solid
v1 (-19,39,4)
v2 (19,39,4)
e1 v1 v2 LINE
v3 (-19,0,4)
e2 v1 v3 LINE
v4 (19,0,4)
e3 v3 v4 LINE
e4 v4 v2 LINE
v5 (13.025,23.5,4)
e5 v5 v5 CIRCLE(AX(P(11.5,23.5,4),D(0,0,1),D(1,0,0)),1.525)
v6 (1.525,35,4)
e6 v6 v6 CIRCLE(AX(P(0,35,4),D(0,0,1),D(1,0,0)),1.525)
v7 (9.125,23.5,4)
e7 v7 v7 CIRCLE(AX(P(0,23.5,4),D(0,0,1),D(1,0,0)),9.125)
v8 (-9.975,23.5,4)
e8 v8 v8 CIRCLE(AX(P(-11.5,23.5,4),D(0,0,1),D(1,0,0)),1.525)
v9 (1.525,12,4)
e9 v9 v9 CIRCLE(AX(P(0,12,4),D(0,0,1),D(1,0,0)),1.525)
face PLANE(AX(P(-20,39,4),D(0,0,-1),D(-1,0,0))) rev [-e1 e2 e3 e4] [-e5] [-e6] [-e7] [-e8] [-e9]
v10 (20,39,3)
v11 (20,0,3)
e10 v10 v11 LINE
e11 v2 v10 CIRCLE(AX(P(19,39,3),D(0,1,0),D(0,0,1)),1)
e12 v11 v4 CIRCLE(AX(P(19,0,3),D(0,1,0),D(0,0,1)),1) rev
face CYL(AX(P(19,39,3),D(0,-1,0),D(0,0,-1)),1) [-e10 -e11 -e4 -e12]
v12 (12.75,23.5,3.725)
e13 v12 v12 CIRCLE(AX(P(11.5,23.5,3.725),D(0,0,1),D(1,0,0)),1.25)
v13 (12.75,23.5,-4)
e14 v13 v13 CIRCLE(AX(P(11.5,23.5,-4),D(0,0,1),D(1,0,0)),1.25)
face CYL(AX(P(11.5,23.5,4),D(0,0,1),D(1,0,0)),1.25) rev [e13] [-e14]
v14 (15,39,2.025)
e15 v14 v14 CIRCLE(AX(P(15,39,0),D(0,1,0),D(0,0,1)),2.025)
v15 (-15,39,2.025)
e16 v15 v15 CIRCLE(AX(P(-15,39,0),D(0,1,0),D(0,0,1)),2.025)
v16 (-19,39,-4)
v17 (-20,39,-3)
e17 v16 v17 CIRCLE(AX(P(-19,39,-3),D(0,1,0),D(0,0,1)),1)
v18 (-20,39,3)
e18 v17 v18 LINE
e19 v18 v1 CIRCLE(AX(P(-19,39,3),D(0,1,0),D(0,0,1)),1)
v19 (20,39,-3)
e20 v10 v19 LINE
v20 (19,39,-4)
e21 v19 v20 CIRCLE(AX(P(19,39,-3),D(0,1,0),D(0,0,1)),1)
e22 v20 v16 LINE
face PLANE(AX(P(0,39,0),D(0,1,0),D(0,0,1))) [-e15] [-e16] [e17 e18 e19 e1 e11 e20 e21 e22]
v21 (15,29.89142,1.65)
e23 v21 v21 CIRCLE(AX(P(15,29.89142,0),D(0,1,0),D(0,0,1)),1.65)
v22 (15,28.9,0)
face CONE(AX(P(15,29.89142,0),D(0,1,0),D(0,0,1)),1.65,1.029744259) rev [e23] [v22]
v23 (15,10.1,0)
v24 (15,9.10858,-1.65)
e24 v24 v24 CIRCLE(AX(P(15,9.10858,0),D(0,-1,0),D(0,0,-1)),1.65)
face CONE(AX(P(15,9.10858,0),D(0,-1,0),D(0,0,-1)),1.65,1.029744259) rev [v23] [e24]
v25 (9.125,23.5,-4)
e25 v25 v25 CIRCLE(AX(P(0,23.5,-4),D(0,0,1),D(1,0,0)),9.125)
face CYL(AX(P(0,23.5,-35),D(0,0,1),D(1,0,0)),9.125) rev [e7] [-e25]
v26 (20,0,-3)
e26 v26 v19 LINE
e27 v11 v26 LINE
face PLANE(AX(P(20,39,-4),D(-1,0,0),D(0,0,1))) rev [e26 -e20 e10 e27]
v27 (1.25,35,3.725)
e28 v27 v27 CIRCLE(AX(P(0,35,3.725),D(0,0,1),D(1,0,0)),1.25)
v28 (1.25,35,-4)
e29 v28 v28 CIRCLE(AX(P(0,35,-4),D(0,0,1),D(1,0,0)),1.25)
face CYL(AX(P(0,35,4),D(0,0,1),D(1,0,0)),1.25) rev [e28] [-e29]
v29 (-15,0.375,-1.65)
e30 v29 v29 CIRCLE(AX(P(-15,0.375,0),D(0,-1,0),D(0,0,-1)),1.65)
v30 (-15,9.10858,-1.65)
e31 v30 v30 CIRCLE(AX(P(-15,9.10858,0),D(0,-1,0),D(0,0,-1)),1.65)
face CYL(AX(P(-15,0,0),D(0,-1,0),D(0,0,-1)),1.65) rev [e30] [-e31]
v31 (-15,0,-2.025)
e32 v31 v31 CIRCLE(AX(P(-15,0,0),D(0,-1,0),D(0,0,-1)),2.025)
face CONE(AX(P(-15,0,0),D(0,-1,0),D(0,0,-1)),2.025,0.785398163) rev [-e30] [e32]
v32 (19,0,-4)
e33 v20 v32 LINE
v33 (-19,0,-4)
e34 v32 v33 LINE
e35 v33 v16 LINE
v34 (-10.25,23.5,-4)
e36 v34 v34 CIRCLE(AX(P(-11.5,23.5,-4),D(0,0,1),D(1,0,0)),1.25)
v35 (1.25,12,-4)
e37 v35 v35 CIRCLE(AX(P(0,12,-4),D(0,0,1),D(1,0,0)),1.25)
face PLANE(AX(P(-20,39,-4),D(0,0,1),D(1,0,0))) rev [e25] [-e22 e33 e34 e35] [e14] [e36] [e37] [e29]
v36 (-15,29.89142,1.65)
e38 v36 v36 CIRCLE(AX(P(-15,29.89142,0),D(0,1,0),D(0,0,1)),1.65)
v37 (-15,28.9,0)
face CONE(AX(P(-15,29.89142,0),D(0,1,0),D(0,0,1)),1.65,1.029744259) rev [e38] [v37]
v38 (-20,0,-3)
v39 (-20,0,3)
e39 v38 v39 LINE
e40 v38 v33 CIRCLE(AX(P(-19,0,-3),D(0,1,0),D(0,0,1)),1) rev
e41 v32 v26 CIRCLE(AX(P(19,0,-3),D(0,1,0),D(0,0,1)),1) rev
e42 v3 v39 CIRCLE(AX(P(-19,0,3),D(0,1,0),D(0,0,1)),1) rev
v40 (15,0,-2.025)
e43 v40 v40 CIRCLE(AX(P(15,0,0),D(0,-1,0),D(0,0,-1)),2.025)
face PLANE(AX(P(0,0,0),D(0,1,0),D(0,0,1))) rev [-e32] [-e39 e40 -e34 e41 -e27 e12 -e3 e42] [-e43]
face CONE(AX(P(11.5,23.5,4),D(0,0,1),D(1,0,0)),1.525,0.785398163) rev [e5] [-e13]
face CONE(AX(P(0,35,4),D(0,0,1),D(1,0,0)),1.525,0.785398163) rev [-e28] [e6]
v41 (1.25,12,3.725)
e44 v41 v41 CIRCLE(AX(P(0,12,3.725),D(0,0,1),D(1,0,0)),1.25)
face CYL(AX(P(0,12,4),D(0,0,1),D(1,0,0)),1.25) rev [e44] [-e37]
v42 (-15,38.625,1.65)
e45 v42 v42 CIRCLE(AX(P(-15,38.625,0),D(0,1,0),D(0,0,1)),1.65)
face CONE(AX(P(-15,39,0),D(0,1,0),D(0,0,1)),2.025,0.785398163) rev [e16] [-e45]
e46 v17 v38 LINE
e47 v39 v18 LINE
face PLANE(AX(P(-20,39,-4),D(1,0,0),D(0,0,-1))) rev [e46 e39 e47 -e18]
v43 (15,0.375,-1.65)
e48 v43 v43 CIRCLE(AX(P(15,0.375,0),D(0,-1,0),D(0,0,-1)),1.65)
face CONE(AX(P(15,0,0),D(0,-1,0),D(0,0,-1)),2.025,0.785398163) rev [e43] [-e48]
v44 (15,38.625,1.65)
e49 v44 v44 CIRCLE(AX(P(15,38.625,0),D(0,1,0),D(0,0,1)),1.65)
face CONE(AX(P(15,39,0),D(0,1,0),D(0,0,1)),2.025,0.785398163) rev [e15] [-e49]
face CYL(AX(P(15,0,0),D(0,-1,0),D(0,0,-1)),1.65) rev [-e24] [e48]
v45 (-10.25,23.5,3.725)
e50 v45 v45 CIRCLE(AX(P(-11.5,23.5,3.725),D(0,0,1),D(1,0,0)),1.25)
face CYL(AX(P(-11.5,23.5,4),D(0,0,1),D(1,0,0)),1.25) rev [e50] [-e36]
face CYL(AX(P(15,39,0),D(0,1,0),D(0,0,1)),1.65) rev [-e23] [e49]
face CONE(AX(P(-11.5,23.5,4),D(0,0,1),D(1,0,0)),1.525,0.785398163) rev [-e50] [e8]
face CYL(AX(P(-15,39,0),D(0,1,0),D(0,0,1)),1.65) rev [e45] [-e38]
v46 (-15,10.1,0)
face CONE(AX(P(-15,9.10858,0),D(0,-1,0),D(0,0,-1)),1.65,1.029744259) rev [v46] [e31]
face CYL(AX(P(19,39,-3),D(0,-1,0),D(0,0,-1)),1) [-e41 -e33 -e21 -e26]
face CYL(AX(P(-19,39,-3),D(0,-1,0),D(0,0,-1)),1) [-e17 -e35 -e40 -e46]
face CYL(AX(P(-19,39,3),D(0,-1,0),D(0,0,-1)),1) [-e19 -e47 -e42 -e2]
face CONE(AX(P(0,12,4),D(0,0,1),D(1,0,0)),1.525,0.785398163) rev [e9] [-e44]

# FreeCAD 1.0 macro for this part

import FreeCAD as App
import Part
import Sketcher


def edges_at(feature, points):
    """Names of the edges that pass closest to the given points."""
    edges = feature.Shape.Edges
    near = lambda p: min(range(len(edges)), key=lambda i: edges[i].distToShape(Part.Vertex(*p))[0])
    return sorted({f"Edge{near(p) + 1}" for p in points})

doc = App.newDocument("Part")
params = doc.addObject("Spreadsheet::Sheet", "Params")
for row, (alias, value) in enumerate([
    ("sketch1_width", "40 mm"),
    ("sketch1_height", "8 mm"),
    ("pad1_length", "39 mm"),
    ("sketch2_diameter", "3.3 mm"),
    ("hole_diameter", "3.3 mm"),
    ("hole_depth", "9.10858 mm"),
    ("hole_csink_diameter", "4.05 mm"),
    ("sketch3_diameter", "18.25 mm"),
    ("pocket1_length", "39 mm"),
    ("sketch4_diameter", "3.3 mm"),
    ("hole2_diameter", "3.3 mm"),
    ("hole2_depth", "9.10858 mm"),
    ("hole2_csink_diameter", "4.05 mm"),
    ("sketch5_diameter", "2.5 mm"),
    ("hole3_diameter", "2.5 mm"),
    ("hole3_csink_diameter", "3.05 mm"),
    ("fillet_radius", "1 mm"),
], start=1):
    params.set(f"A{row}", alias)
    params.set(f"B{row}", "=" + value)
    params.setAlias(f"B{row}", alias)

body = doc.addObject("PartDesign::Body", "Body")

# Sketch on XZ plane
sketch1 = body.newObject("Sketcher::SketchObject", "Sketch")
sketch1.AttachmentSupport = (doc.getObject("XZ_Plane"), [""])
sketch1.MapMode = "FlatFace"
sketch1.addGeometry(Part.LineSegment(App.Vector(-20, -4, 0), App.Vector(-20, 4, 0)), False)
sketch1.addGeometry(Part.LineSegment(App.Vector(-20, 4, 0), App.Vector(20, 4, 0)), False)
sketch1.addGeometry(Part.LineSegment(App.Vector(20, 4, 0), App.Vector(20, -4, 0)), False)
sketch1.addGeometry(Part.LineSegment(App.Vector(20, -4, 0), App.Vector(-20, -4, 0)), False)
sketch1.addConstraint(Sketcher.Constraint("Coincident", 0, 2, 1, 1))
sketch1.addConstraint(Sketcher.Constraint("Coincident", 1, 2, 2, 1))
sketch1.addConstraint(Sketcher.Constraint("Coincident", 2, 2, 3, 1))
sketch1.addConstraint(Sketcher.Constraint("Coincident", 3, 2, 0, 1))
sketch1.addConstraint(Sketcher.Constraint("Vertical", 0))
sketch1.addConstraint(Sketcher.Constraint("Horizontal", 1))
sketch1.addConstraint(Sketcher.Constraint("Vertical", 2))
sketch1.addConstraint(Sketcher.Constraint("Horizontal", 3))
sketch1.addConstraint(Sketcher.Constraint("Symmetric", 0, 2, 2, 2, -1, 1))
sketch1.addConstraint(Sketcher.Constraint("DistanceX", 1, 1, 1, 2, 40.0))
sketch1.addConstraint(Sketcher.Constraint("DistanceY", 0, 1, 0, 2, 8.0))
sketch1.setExpression("Constraints[9]", "Params.sketch1_width")
sketch1.setExpression("Constraints[10]", "Params.sketch1_height")
pad1 = body.newObject("PartDesign::Pad", "Pad")
pad1.Profile = sketch1
pad1.setExpression("Length", "Params.pad1_length")
pad1.Reversed = True

# Sketch on XZ plane
sketch2 = body.newObject("Sketcher::SketchObject", "Sketch001")
sketch2.AttachmentSupport = (doc.getObject("XZ_Plane"), [""])
sketch2.MapMode = "FlatFace"
sketch2.AttachmentOffset = App.Placement(App.Vector(0, 0, -39), App.Rotation())
sketch2.addGeometry(Part.Circle(App.Vector(-15, 0, 0), App.Vector(0, 0, 1), 1.6), False)
sketch2.addGeometry(Part.Circle(App.Vector(15, 0, 0), App.Vector(0, 0, 1), 1.6), False)
sketch2.addConstraint(Sketcher.Constraint("Equal", 0, 1))
sketch2.addConstraint(Sketcher.Constraint("Symmetric", 0, 3, 1, 3, -1, 1))
sketch2.addConstraint(Sketcher.Constraint("PointOnObject", 0, 3, -1))
sketch2.addConstraint(Sketcher.Constraint("Diameter", 0, 3.3))
sketch2.addConstraint(Sketcher.Constraint("DistanceX", 0, 3, -1, 1, 15.0))
sketch2.setExpression("Constraints[3]", "Params.sketch2_diameter")
doc.recompute()
hole = body.newObject("PartDesign::Hole", "Hole")
hole.Profile = sketch2
hole.ThreadType = "None"
hole.setExpression("Diameter", "Params.hole_diameter")
hole.DepthType = "Dimension"
hole.setExpression("Depth", "Params.hole_depth")
hole.DrillPoint = "Angled"
hole.DrillPointAngle = 118
hole.HoleCutType = "Countersink"
hole.setExpression("HoleCutDiameter", "Params.hole_csink_diameter")
hole.HoleCutCountersinkAngle = 90
hole.Reversed = True

# Sketch on XY plane
sketch3 = body.newObject("Sketcher::SketchObject", "Sketch002")
sketch3.AttachmentSupport = (doc.getObject("XY_Plane"), [""])
sketch3.MapMode = "FlatFace"
sketch3.AttachmentOffset = App.Placement(App.Vector(0, 0, 4), App.Rotation())
sketch3.addGeometry(Part.Circle(App.Vector(0, 24, 0), App.Vector(0, 0, 1), 9), False)
sketch3.addConstraint(Sketcher.Constraint("PointOnObject", 0, 3, -2))
sketch3.addConstraint(Sketcher.Constraint("Diameter", 0, 18.25))
sketch3.addConstraint(Sketcher.Constraint("DistanceY", -1, 1, 0, 3, 23.5))
sketch3.setExpression("Constraints[1]", "Params.sketch3_diameter")
pocket1 = body.newObject("PartDesign::Pocket", "Pocket")
pocket1.Profile = sketch3
pocket1.setExpression("Length", "Params.pocket1_length")

# Sketch on XZ plane
sketch4 = body.newObject("Sketcher::SketchObject", "Sketch003")
sketch4.AttachmentSupport = (doc.getObject("XZ_Plane"), [""])
sketch4.MapMode = "FlatFace"
sketch4.addGeometry(Part.Circle(App.Vector(-15, 0, 0), App.Vector(0, 0, 1), 1.6), False)
sketch4.addGeometry(Part.Circle(App.Vector(15, 0, 0), App.Vector(0, 0, 1), 1.6), False)
sketch4.addConstraint(Sketcher.Constraint("Equal", 0, 1))
sketch4.addConstraint(Sketcher.Constraint("Symmetric", 0, 3, 1, 3, -1, 1))
sketch4.addConstraint(Sketcher.Constraint("PointOnObject", 0, 3, -1))
sketch4.addConstraint(Sketcher.Constraint("Diameter", 0, 3.3))
sketch4.addConstraint(Sketcher.Constraint("DistanceX", 0, 3, -1, 1, 15.0))
sketch4.setExpression("Constraints[3]", "Params.sketch4_diameter")
doc.recompute()
hole2 = body.newObject("PartDesign::Hole", "Hole001")
hole2.Profile = sketch4
hole2.ThreadType = "None"
hole2.setExpression("Diameter", "Params.hole2_diameter")
hole2.DepthType = "Dimension"
hole2.setExpression("Depth", "Params.hole2_depth")
hole2.DrillPoint = "Angled"
hole2.DrillPointAngle = 118
hole2.HoleCutType = "Countersink"
hole2.setExpression("HoleCutDiameter", "Params.hole2_csink_diameter")
hole2.HoleCutCountersinkAngle = 90

# Sketch on XY plane
sketch5 = body.newObject("Sketcher::SketchObject", "Sketch004")
sketch5.AttachmentSupport = (doc.getObject("XY_Plane"), [""])
sketch5.MapMode = "FlatFace"
sketch5.AttachmentOffset = App.Placement(App.Vector(0, 0, 4), App.Rotation())
sketch5.addGeometry(Part.Circle(App.Vector(0, 35, 0), App.Vector(0, 0, 1), 1.2), False)
sketch5.addGeometry(Part.Circle(App.Vector(-11.5, 23.5, 0), App.Vector(0, 0, 1), 1.2), False)
sketch5.addGeometry(Part.Circle(App.Vector(11.5, 23.5, 0), App.Vector(0, 0, 1), 1.2), False)
sketch5.addGeometry(Part.Circle(App.Vector(0, 12, 0), App.Vector(0, 0, 1), 1.2), False)
sketch5.addConstraint(Sketcher.Constraint("Equal", 0, 1))
sketch5.addConstraint(Sketcher.Constraint("Equal", 1, 2))
sketch5.addConstraint(Sketcher.Constraint("Equal", 2, 3))
sketch5.addConstraint(Sketcher.Constraint("Symmetric", 1, 3, 2, 3, -2))
sketch5.addConstraint(Sketcher.Constraint("PointOnObject", 0, 3, -2))
sketch5.addConstraint(Sketcher.Constraint("PointOnObject", 3, 3, -2))
sketch5.addConstraint(Sketcher.Constraint("Diameter", 0, 2.5))
sketch5.addConstraint(Sketcher.Constraint("DistanceY", -1, 1, 0, 3, 35.0))
sketch5.addConstraint(Sketcher.Constraint("DistanceY", -1, 1, 3, 3, 12.0))
sketch5.addConstraint(Sketcher.Constraint("DistanceX", 1, 3, 2, 3, 23.0))
sketch5.addConstraint(Sketcher.Constraint("DistanceY", -1, 1, 1, 3, 23.5))
sketch5.setExpression("Constraints[6]", "Params.sketch5_diameter")
doc.recompute()
hole3 = body.newObject("PartDesign::Hole", "Hole002")
hole3.Profile = sketch5
hole3.ThreadType = "None"
hole3.setExpression("Diameter", "Params.hole3_diameter")
hole3.DepthType = "ThroughAll"
hole3.HoleCutType = "Countersink"
hole3.setExpression("HoleCutDiameter", "Params.hole3_csink_diameter")
hole3.HoleCutCountersinkAngle = 90
doc.recompute()

fillet = body.newObject("PartDesign::Fillet", "Fillet")
fillet.Base = (hole3, edges_at(hole3, [
    (20, 19.5, 4),
    (-20, 19.5, 4),
    (-20, 19.5, -4),
    (20, 19.5, -4),
]))
fillet.setExpression("Radius", "Params.fillet_radius")

doc.recompute()
